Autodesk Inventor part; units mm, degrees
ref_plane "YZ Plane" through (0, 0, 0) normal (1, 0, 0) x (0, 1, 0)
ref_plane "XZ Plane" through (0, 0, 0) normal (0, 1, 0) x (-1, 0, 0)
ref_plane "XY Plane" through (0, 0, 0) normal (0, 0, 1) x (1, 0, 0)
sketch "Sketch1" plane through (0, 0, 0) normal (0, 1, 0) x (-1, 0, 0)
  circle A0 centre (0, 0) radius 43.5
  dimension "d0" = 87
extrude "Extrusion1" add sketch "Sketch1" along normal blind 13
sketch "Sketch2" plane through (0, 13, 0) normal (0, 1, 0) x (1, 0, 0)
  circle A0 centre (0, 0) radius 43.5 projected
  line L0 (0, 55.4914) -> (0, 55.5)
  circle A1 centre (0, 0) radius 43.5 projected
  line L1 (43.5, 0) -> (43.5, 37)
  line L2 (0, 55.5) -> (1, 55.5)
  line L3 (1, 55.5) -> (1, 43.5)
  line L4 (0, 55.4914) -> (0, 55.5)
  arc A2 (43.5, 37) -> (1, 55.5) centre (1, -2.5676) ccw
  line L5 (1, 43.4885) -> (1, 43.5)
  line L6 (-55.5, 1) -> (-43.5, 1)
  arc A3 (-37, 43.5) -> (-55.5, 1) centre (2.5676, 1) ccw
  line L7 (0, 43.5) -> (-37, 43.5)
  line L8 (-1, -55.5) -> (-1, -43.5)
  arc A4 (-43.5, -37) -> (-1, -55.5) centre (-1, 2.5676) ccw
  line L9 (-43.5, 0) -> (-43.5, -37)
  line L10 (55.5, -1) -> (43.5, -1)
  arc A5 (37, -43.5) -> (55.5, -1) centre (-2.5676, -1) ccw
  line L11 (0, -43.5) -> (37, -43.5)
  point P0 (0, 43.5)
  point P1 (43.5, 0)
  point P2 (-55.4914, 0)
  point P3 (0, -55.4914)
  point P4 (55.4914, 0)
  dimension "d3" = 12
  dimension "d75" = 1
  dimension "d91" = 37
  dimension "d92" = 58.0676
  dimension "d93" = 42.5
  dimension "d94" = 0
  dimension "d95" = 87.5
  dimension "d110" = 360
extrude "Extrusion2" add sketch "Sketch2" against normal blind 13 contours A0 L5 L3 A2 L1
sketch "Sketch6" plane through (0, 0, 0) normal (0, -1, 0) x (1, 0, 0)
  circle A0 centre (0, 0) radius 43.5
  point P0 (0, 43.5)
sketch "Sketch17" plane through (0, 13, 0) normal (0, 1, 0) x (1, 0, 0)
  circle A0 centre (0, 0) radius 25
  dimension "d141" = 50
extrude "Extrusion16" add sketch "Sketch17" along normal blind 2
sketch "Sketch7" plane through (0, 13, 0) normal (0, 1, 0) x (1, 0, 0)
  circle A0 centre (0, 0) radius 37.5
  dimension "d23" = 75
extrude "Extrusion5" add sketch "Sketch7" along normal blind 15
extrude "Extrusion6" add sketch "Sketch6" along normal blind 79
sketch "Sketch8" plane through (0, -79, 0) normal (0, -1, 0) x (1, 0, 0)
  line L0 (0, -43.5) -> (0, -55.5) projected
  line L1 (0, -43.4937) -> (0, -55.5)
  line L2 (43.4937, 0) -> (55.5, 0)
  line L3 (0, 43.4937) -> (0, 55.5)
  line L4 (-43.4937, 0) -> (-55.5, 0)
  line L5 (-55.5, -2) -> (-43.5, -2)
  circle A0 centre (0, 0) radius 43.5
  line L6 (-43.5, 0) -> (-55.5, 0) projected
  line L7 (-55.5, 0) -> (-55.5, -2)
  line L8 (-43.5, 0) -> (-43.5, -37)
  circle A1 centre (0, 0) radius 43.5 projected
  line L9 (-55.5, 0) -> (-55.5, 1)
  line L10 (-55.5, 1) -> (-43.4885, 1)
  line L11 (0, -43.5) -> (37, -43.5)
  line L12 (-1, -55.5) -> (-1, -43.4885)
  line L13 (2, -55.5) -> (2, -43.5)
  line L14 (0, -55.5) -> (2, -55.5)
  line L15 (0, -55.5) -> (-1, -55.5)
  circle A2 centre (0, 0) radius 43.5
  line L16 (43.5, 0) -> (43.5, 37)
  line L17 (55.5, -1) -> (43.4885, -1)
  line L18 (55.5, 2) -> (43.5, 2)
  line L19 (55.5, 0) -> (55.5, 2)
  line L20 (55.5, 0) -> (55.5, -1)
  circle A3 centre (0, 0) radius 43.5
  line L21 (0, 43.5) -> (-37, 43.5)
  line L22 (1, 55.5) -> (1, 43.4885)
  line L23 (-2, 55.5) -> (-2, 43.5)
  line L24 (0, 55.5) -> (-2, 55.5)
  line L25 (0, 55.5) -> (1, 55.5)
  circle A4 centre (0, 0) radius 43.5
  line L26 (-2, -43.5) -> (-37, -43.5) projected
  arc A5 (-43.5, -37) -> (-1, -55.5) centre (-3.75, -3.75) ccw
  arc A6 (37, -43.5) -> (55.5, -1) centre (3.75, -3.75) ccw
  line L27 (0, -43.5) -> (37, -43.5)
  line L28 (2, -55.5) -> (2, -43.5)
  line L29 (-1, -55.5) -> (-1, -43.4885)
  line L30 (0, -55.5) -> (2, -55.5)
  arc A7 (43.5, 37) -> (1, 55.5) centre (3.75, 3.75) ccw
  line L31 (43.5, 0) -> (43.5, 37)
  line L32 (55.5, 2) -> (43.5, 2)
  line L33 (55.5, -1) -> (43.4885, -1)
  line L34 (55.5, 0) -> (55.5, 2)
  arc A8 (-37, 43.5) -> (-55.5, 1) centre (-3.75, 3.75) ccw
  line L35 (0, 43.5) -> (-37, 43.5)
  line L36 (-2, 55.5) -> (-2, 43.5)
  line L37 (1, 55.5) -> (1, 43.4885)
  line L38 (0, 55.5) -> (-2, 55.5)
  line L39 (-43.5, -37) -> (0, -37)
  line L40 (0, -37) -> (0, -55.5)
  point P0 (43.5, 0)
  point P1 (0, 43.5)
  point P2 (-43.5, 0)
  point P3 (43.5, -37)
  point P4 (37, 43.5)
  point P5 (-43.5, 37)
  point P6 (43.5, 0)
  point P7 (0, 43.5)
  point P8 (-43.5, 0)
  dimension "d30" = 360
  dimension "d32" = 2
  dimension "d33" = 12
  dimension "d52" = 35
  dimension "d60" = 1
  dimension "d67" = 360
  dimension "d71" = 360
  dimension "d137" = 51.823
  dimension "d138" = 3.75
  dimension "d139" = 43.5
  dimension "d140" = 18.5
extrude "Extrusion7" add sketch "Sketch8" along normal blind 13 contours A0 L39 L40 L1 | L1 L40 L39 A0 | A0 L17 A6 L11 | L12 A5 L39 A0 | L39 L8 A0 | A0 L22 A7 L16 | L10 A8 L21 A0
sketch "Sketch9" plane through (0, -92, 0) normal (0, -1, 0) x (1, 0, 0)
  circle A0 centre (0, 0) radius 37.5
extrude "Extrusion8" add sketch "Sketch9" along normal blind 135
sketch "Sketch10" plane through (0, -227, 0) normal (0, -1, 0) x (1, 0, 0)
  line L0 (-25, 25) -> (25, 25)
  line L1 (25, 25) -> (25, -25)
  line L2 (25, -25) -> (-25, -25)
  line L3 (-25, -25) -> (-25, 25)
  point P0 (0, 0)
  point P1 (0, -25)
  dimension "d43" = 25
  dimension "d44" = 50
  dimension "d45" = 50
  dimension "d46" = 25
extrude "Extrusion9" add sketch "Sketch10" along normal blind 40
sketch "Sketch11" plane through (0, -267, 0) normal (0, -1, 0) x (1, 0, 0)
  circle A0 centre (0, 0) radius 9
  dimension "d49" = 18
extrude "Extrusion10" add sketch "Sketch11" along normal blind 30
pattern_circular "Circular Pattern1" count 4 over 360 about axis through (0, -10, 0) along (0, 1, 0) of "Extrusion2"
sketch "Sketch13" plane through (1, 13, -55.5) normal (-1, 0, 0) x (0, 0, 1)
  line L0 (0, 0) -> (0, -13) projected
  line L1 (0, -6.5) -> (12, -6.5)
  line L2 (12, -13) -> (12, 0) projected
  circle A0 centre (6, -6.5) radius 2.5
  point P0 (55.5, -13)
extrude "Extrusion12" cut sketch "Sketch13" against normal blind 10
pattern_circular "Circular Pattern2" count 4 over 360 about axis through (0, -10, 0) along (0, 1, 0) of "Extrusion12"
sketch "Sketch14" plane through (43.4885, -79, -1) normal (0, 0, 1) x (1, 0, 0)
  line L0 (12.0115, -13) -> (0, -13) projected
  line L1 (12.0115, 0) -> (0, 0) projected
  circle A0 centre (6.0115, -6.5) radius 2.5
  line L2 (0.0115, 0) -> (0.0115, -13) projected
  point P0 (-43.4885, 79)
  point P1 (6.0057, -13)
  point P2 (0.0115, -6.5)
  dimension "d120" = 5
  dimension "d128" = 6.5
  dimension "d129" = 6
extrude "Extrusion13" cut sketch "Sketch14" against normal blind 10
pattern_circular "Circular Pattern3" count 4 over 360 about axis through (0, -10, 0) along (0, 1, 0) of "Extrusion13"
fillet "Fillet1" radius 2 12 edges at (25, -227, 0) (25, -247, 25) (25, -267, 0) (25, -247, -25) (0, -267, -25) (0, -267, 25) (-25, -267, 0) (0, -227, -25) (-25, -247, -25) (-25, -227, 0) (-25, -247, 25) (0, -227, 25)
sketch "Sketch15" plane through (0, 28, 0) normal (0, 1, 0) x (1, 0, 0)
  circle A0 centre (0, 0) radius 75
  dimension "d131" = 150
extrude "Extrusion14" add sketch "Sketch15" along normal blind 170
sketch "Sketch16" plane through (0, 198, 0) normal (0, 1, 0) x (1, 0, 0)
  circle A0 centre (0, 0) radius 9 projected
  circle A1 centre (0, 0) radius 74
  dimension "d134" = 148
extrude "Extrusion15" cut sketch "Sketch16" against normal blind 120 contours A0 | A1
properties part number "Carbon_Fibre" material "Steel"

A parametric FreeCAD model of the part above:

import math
import FreeCAD as App
import Part
import Sketcher

V = App.Vector
Q = App.Units.Quantity


def edges_at(feature, points):
    """Names of the edges that pass closest to the given points."""
    edges = feature.Shape.Edges
    near = lambda p: min(range(len(edges)), key=lambda i: edges[i].distToShape(Part.Vertex(*p))[0])
    return sorted({f"Edge{near(p) + 1}" for p in points})

doc = App.newDocument("Part")
body = doc.addObject("PartDesign::Body", "Body")

sketch1 = body.newObject("Sketcher::SketchObject", "Sketch")
sketch1.AttachmentSupport = (doc.getObject("XZ_Plane"), [""])
sketch1.MapMode = "FlatFace"
sketch1.addGeometry(Part.Circle(V(0, 0, 0), V(0, 0, 1), 44), False)
sketch1.addConstraint([
    Sketcher.Constraint("Coincident", 0, 3, -1, 1),
    Sketcher.Constraint("Diameter", 0, Q("87 mm")),
])
pad1 = body.newObject("PartDesign::Pad", "Pad")
pad1.Profile = sketch1
pad1.Length = 13
pad1.Reversed = True

sketch2 = body.newObject("Sketcher::SketchObject", "Sketch001")
sketch2.AttachmentSupport = (doc.getObject("XZ_Plane"), [""])
sketch2.MapMode = "FlatFace"
sketch2.AttachmentOffset = App.Placement(V(0, 0, -13), App.Rotation())
sketch2.addGeometry([
    Part.ArcOfCircle(Part.Circle(V(0, 0, 0), V(0, 0, 1), 44), math.radians(-89), math.radians(0)),
    Part.LineSegment(V(44, 0, 0), V(44, -37, 0)),
    Part.ArcOfCircle(Part.Circle(V(1, 3, 0), V(0, 0, 1), 58), math.radians(-90), math.radians(-43)),
    Part.LineSegment(V(1, -56, 0), V(1, -43, 0)),
], False)
sketch2.addConstraint([
    Sketcher.Constraint("Tangent", 0, 2, 1, 1),
    Sketcher.Constraint("Coincident", 1, 2, 2, 2),
    Sketcher.Constraint("Coincident", 2, 1, 3, 1),
    Sketcher.Constraint("Coincident", 3, 2, 0, 1),
    Sketcher.Constraint("Vertical", 1),
    Sketcher.Constraint("Vertical", 3),
    Sketcher.Constraint("Coincident", 0, 3, -1, 1),
    Sketcher.Constraint("DistanceY", 1, 2, 1, 1, Q("37 mm")),
    Sketcher.Constraint("DistanceX", -1, 1, 2, 3, Q("1 mm")),
    Sketcher.Constraint("DistanceX", -1, 1, 2, 1, Q("1 mm")),
    Sketcher.Constraint("Radius", 0, Q("43.5 mm")),
    Sketcher.Constraint("Radius", 2, Q("58.0676 mm")),
])
pad2 = body.newObject("PartDesign::Pad", "Pad001")
pad2.Profile = sketch2
pad2.Length = 13

sketch3 = body.newObject("Sketcher::SketchObject", "Sketch002")
sketch3.AttachmentSupport = (doc.getObject("XZ_Plane"), [""])
sketch3.MapMode = "FlatFace"
sketch3.AttachmentOffset = App.Placement(V(0, 0, -13), App.Rotation())
sketch3.addGeometry(Part.Circle(V(0, 0, 0), V(0, 0, 1), 25), False)
sketch3.addConstraint([
    Sketcher.Constraint("Coincident", 0, 3, -1, 1),
    Sketcher.Constraint("Diameter", 0, Q("50 mm")),
])
pad3 = body.newObject("PartDesign::Pad", "Pad002")
pad3.Profile = sketch3
pad3.Length = 2
pad3.Reversed = True

sketch4 = body.newObject("Sketcher::SketchObject", "Sketch003")
sketch4.AttachmentSupport = (doc.getObject("XZ_Plane"), [""])
sketch4.MapMode = "FlatFace"
sketch4.AttachmentOffset = App.Placement(V(0, 0, -13), App.Rotation())
sketch4.addGeometry(Part.Circle(V(0, 0, 0), V(0, 0, 1), 38), False)
sketch4.addConstraint([
    Sketcher.Constraint("Coincident", 0, 3, -1, 1),
    Sketcher.Constraint("Diameter", 0, Q("75 mm")),
])
pad4 = body.newObject("PartDesign::Pad", "Pad003")
pad4.Profile = sketch4
pad4.Length = 15
pad4.Reversed = True

sketch5 = body.newObject("Sketcher::SketchObject", "Sketch004")
sketch5.AttachmentSupport = (doc.getObject("XZ_Plane"), [""])
sketch5.MapMode = "FlatFace"
sketch5.addGeometry(Part.Circle(V(0, 0, 0), V(0, 0, 1), 44), False)
sketch5.addConstraint([
    Sketcher.Constraint("Coincident", 0, 3, -1, 1),
    Sketcher.Constraint("Diameter", 0, Q("87 mm")),
])
pad5 = body.newObject("PartDesign::Pad", "Pad004")
pad5.Profile = sketch5
pad5.Length = 79

sketch6 = body.newObject("Sketcher::SketchObject", "Sketch005")
sketch6.AttachmentSupport = (doc.getObject("XZ_Plane"), [""])
sketch6.MapMode = "FlatFace"
sketch6.AttachmentOffset = App.Placement(V(0, 0, 79), App.Rotation())
sketch6.addGeometry([
    Part.ArcOfCircle(Part.Circle(V(0, 0, 0), V(0, 0, 1), 43.5), math.radians(-91.32), math.radians(-90)),
    Part.LineSegment(V(0, -43.5, 0), V(37, -43.5, 0)),
    Part.ArcOfCircle(Part.Circle(V(3.8, -3.8, 0), V(0, 0, 1), 51.8), math.radians(-50), math.radians(3)),
    Part.LineSegment(V(55.5, -1, 0), V(43.5, -1, 0)),
    Part.ArcOfCircle(Part.Circle(V(0, 0, 0), V(0, 0, 1), 43.5), math.radians(-1.32), math.radians(0)),
    Part.LineSegment(V(43.5, 0, 0), V(43.5, 37, 0)),
    Part.ArcOfCircle(Part.Circle(V(3.8, 3.8, 0), V(0, 0, 1), 51.8), math.radians(40), math.radians(93)),
    Part.LineSegment(V(1, 55.5, 0), V(1, 43.5, 0)),
    Part.ArcOfCircle(Part.Circle(V(0, 0, 0), V(0, 0, 1), 43.5), math.radians(88.68), math.radians(90)),
    Part.LineSegment(V(0, 43.5, 0), V(-37, 43.5, 0)),
    Part.ArcOfCircle(Part.Circle(V(-3.8, 3.8, 0), V(0, 0, 1), 51.8), math.radians(130), math.radians(183)),
    Part.LineSegment(V(-55.5, 1, 0), V(-43.5, 1, 0)),
    Part.ArcOfCircle(Part.Circle(V(0, 0, 0), V(0, 0, 1), 43.5), math.radians(178.68), math.radians(180)),
    Part.LineSegment(V(-43.5, 0, 0), V(-43.5, -37, 0)),
    Part.ArcOfCircle(Part.Circle(V(-3.8, -3.8, 0), V(0, 0, 1), 51.8), math.radians(-140), math.radians(-87)),
    Part.LineSegment(V(-1, -55.5, 0), V(-1, -43.5, 0)),
], False)
sketch6.addConstraint([
    Sketcher.Constraint("Tangent", 0, 2, 1, 1),
    Sketcher.Constraint("Coincident", 1, 2, 2, 1),
    Sketcher.Constraint("Coincident", 2, 2, 3, 1),
    Sketcher.Constraint("Coincident", 3, 2, 4, 1),
    Sketcher.Constraint("Tangent", 4, 2, 5, 1),
    Sketcher.Constraint("Coincident", 5, 2, 6, 1),
    Sketcher.Constraint("Coincident", 6, 2, 7, 1),
    Sketcher.Constraint("Coincident", 7, 2, 8, 1),
    Sketcher.Constraint("Tangent", 8, 2, 9, 1),
    Sketcher.Constraint("Coincident", 9, 2, 10, 1),
    Sketcher.Constraint("Coincident", 10, 2, 11, 1),
    Sketcher.Constraint("Coincident", 11, 2, 12, 1),
    Sketcher.Constraint("Tangent", 12, 2, 13, 1),
    Sketcher.Constraint("Coincident", 13, 2, 14, 1),
    Sketcher.Constraint("Coincident", 14, 2, 15, 1),
    Sketcher.Constraint("Coincident", 15, 2, 0, 1),
    Sketcher.Constraint("Horizontal", 1),
    Sketcher.Constraint("Horizontal", 3),
    Sketcher.Constraint("Vertical", 5),
    Sketcher.Constraint("Vertical", 7),
    Sketcher.Constraint("Horizontal", 9),
    Sketcher.Constraint("Horizontal", 11),
    Sketcher.Constraint("Vertical", 13),
    Sketcher.Constraint("Vertical", 15),
    Sketcher.Constraint("Coincident", 0, 3, -1, 1),
    Sketcher.Constraint("Coincident", 4, 3, -1, 1),
    Sketcher.Constraint("Coincident", 8, 3, -1, 1),
    Sketcher.Constraint("Coincident", 12, 3, -1, 1),
    Sketcher.Constraint("Equal", 0, 4),
    Sketcher.Constraint("Equal", 2, 6),
    Sketcher.Constraint("Equal", 4, 8),
    Sketcher.Constraint("Equal", 6, 10),
    Sketcher.Constraint("Equal", 8, 12),
    Sketcher.Constraint("Equal", 10, 14),
    Sketcher.Constraint("Symmetric", 2, 3, 10, 3, -1, 1),
    Sketcher.Constraint("Symmetric", 6, 3, 14, 3, -1, 1),
    Sketcher.Constraint("Symmetric", 6, 3, 10, 3, -2),
    Sketcher.Constraint("Equal", 3, 11),
    Sketcher.Constraint("Equal", 9, 5),
    Sketcher.Constraint("Equal", 11, 7),
    Sketcher.Constraint("Equal", 7, 15),
    Sketcher.Constraint("Radius", 0, Q("43.5 mm")),
    Sketcher.Constraint("DistanceY", 2, 2, -1, 1, Q("1 mm")),
    Sketcher.Constraint("Radius", 2, Q("51.823 mm")),
    Sketcher.Constraint("DistanceX", 4, 2, 2, 2, Q("12 mm")),
])
pad6 = body.newObject("PartDesign::Pad", "Pad005")
pad6.Profile = sketch6
pad6.Length = 13

sketch7 = body.newObject("Sketcher::SketchObject", "Sketch006")
sketch7.AttachmentSupport = (doc.getObject("XZ_Plane"), [""])
sketch7.MapMode = "FlatFace"
sketch7.AttachmentOffset = App.Placement(V(0, 0, 92), App.Rotation())
sketch7.addGeometry(Part.Circle(V(0, 0, 0), V(0, 0, 1), 38), False)
sketch7.addConstraint([
    Sketcher.Constraint("Coincident", 0, 3, -1, 1),
    Sketcher.Constraint("Diameter", 0, Q("75 mm")),
])
pad7 = body.newObject("PartDesign::Pad", "Pad006")
pad7.Profile = sketch7
pad7.Length = 135

sketch8 = body.newObject("Sketcher::SketchObject", "Sketch007")
sketch8.AttachmentSupport = (doc.getObject("XZ_Plane"), [""])
sketch8.MapMode = "FlatFace"
sketch8.AttachmentOffset = App.Placement(V(0, 0, 227), App.Rotation())
sketch8.addGeometry([
    Part.LineSegment(V(25, 25, 0), V(-25, 25, 0)),
    Part.LineSegment(V(-25, 25, 0), V(-25, -25, 0)),
    Part.LineSegment(V(-25, -25, 0), V(25, -25, 0)),
    Part.LineSegment(V(25, -25, 0), V(25, 25, 0)),
], False)
sketch8.addConstraint([
    Sketcher.Constraint("Coincident", 0, 2, 1, 1),
    Sketcher.Constraint("Coincident", 1, 2, 2, 1),
    Sketcher.Constraint("Coincident", 2, 2, 3, 1),
    Sketcher.Constraint("Coincident", 3, 2, 0, 1),
    Sketcher.Constraint("Horizontal", 0),
    Sketcher.Constraint("Vertical", 1),
    Sketcher.Constraint("Horizontal", 2),
    Sketcher.Constraint("Vertical", 3),
    Sketcher.Constraint("Symmetric", 0, 2, 2, 2, -1, 1),
    Sketcher.Constraint("Equal", 2, 1),
    Sketcher.Constraint("DistanceX", 0, 2, 0, 1, Q("50 mm")),
])
pad8 = body.newObject("PartDesign::Pad", "Pad007")
pad8.Profile = sketch8
pad8.Length = 40

sketch9 = body.newObject("Sketcher::SketchObject", "Sketch008")
sketch9.AttachmentSupport = (doc.getObject("XZ_Plane"), [""])
sketch9.MapMode = "FlatFace"
sketch9.AttachmentOffset = App.Placement(V(0, 0, 267), App.Rotation())
sketch9.addGeometry(Part.Circle(V(0, 0, 0), V(0, 0, 1), 9), False)
sketch9.addConstraint([
    Sketcher.Constraint("Coincident", 0, 3, -1, 1),
    Sketcher.Constraint("Diameter", 0, Q("18 mm")),
])
pad9 = body.newObject("PartDesign::Pad", "Pad008")
pad9.Profile = sketch9
pad9.Length = 30
doc.recompute()

polarpattern = body.newObject("PartDesign::PolarPattern", "PolarPattern")
polarpattern.Originals = [pad2]
polarpattern.Axis = (doc.getObject("Y_Axis"), [""])
polarpattern.Angle = 360
polarpattern.Occurrences = 4
body.Tip = polarpattern

sketch10 = body.newObject("Sketcher::SketchObject", "Sketch009")
sketch10.AttachmentSupport = (doc.getObject("YZ_Plane"), [""])
sketch10.MapMode = "FlatFace"
sketch10.AttachmentOffset = App.Placement(V(0, 0, 1), App.Rotation())
sketch10.addGeometry(Part.Circle(V(6.5, -49.5, 0), V(0, 0, 1), 2.5), False)
sketch10.addConstraint([
    Sketcher.Constraint("Diameter", 0, Q("5 mm")),
    Sketcher.Constraint("DistanceX", -1, 1, 0, 3, Q("6.5 mm")),
    Sketcher.Constraint("DistanceY", 0, 3, -1, 1, Q("49.5 mm")),
])
pocket1 = body.newObject("PartDesign::Pocket", "Pocket")
pocket1.Profile = sketch10
pocket1.Length = 10
pocket1.Reversed = True
doc.recompute()

polarpattern2 = body.newObject("PartDesign::PolarPattern", "PolarPattern001")
polarpattern2.Originals = [pocket1]
polarpattern2.Axis = (doc.getObject("Y_Axis"), [""])
polarpattern2.Angle = 360
polarpattern2.Occurrences = 4
body.Tip = polarpattern2

sketch11 = body.newObject("Sketcher::SketchObject", "Sketch010")
sketch11.AttachmentSupport = (doc.getObject("XY_Plane"), [""])
sketch11.MapMode = "FlatFace"
sketch11.AttachmentOffset = App.Placement(V(0, 0, -1), App.Rotation())
sketch11.addGeometry(Part.Circle(V(49.5, -85.5, 0), V(0, 0, 1), 2.5), False)
sketch11.addConstraint([
    Sketcher.Constraint("Diameter", 0, Q("5 mm")),
    Sketcher.Constraint("DistanceX", -1, 1, 0, 3, Q("49.5 mm")),
    Sketcher.Constraint("DistanceY", 0, 3, -1, 1, Q("85.5 mm")),
])
pocket2 = body.newObject("PartDesign::Pocket", "Pocket001")
pocket2.Profile = sketch11
pocket2.Length = 10
doc.recompute()

polarpattern3 = body.newObject("PartDesign::PolarPattern", "PolarPattern002")
polarpattern3.Originals = [pocket2]
polarpattern3.Axis = (doc.getObject("Y_Axis"), [""])
polarpattern3.Angle = 360
polarpattern3.Occurrences = 4
body.Tip = polarpattern3
doc.recompute()

fillet = body.newObject("PartDesign::Fillet", "Fillet")
fillet.Base = (polarpattern3, edges_at(polarpattern3, [
    (25, -227, 0),
    (25, -247, 25),
    (25, -267, 0),
    (25, -247, -25),
    (0, -267, -25),
    (0, -267, 25),
    (-25, -267, 0),
    (0, -227, -25),
    (-25, -247, -25),
    (-25, -227, 0),
    (-25, -247, 25),
    (0, -227, 25),
]))
fillet.Radius = 2

sketch12 = body.newObject("Sketcher::SketchObject", "Sketch011")
sketch12.AttachmentSupport = (doc.getObject("XZ_Plane"), [""])
sketch12.MapMode = "FlatFace"
sketch12.AttachmentOffset = App.Placement(V(0, 0, -28), App.Rotation())
sketch12.addGeometry(Part.Circle(V(0, 0, 0), V(0, 0, 1), 75), False)
sketch12.addConstraint([
    Sketcher.Constraint("Coincident", 0, 3, -1, 1),
    Sketcher.Constraint("Diameter", 0, Q("150 mm")),
])
pad10 = body.newObject("PartDesign::Pad", "Pad009")
pad10.Profile = sketch12
pad10.Length = 170
pad10.Reversed = True

sketch13 = body.newObject("Sketcher::SketchObject", "Sketch012")
sketch13.AttachmentSupport = (doc.getObject("XZ_Plane"), [""])
sketch13.MapMode = "FlatFace"
sketch13.AttachmentOffset = App.Placement(V(0, 0, -198), App.Rotation())
sketch13.addGeometry(Part.Circle(V(0, 0, 0), V(0, 0, 1), 74), False)
sketch13.addConstraint([
    Sketcher.Constraint("Coincident", 0, 3, -1, 1),
    Sketcher.Constraint("Diameter", 0, Q("148 mm")),
])
pocket3 = body.newObject("PartDesign::Pocket", "Pocket002")
pocket3.Profile = sketch13
pocket3.Length = 120
pocket3.Reversed = True

doc.recompute()
